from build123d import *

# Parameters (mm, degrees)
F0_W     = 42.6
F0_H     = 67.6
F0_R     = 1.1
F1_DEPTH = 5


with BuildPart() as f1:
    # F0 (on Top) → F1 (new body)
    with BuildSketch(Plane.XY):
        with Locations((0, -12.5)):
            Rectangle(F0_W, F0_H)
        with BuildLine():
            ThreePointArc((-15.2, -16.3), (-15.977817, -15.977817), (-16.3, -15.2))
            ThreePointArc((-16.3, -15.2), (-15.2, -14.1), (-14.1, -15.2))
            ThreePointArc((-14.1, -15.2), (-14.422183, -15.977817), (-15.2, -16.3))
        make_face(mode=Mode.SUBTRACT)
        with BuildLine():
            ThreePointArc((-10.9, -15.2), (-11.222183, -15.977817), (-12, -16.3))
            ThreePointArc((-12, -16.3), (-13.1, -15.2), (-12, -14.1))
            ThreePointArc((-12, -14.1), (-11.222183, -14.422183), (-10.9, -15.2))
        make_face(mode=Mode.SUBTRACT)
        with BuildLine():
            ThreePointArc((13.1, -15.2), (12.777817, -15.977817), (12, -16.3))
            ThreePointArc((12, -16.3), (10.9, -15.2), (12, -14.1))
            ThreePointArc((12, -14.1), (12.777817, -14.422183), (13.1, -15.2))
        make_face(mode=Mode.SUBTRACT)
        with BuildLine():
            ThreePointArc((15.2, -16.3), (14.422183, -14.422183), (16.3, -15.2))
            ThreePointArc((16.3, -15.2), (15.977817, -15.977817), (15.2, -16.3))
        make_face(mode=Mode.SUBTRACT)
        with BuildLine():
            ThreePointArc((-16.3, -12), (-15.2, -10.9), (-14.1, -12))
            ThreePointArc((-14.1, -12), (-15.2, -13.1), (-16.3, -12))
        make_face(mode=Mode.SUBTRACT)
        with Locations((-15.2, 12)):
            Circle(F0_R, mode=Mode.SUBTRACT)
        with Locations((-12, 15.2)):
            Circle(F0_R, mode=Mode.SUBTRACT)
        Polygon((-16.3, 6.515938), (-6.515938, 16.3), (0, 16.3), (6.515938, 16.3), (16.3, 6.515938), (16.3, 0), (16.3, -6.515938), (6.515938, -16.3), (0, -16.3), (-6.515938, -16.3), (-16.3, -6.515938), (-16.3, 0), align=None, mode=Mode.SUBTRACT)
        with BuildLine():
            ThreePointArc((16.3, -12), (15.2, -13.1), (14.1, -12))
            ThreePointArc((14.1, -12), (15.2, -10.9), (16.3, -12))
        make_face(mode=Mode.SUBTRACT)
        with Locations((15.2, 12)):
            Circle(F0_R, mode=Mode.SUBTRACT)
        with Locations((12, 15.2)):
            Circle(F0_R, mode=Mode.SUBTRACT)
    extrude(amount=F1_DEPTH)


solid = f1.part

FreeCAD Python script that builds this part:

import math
import FreeCAD as App
import Part
import Sketcher
Q = App.Units.Quantity


def add_polygon(sketch, points):
    """Adds a closed chain of lines whose ends are joined by coincident constraints."""
    first, n = sketch.GeometryCount, len(points)
    for a, b in zip(points, points[1:] + points[:1]):
        sketch.addGeometry(Part.LineSegment(App.Vector(*a, 0), App.Vector(*b, 0)), False)
    for i in range(n):
        sketch.addConstraint(Sketcher.Constraint("Coincident", first + i, 2, first + (i + 1) % n, 1))

doc = App.newDocument("Part")
params = doc.addObject("Spreadsheet::Sheet", "Params")
for row, (alias, value) in enumerate([
    ("sketch1_diameter", "2.2 mm"),
    ("sketch1_width", "42.6 mm"),
    ("sketch1_height", "67.6 mm"),
    ("pad1_length", "5 mm"),
], start=1):
    params.set(f"A{row}", alias)
    params.set(f"B{row}", "=" + value)
    params.setAlias(f"B{row}", alias)

body = doc.addObject("PartDesign::Body", "Body")

sketch1 = body.newObject("Sketcher::SketchObject", "Sketch")
sketch1.AttachmentSupport = (doc.getObject("XY_Plane"), [""])
sketch1.MapMode = "FlatFace"
add_polygon(sketch1, [(-21.3, 21.3), (-21.3, -46.3), (21.3, -46.3), (21.3, 21.3)])
sketch1.addGeometry(Part.ArcOfCircle(Part.Circle(App.Vector(-15.200002, -15.199998, 0), App.Vector(0, 0, 1), 1.100002), math.radians(-89.999918), math.radians(-0.000082)), False)
sketch1.addGeometry(Part.ArcOfCircle(Part.Circle(App.Vector(-15.199998, -15.199998, 0), App.Vector(0, 0, 1), 1.100002), math.radians(-179.999918), math.radians(-90.000082)), False)
sketch1.addGeometry(Part.ArcOfCircle(Part.Circle(App.Vector(-15.2, -15.2, 0), App.Vector(0, 0, 1), 1.1), math.radians(0), math.radians(180)), False)
sketch1.addGeometry(Part.ArcOfCircle(Part.Circle(App.Vector(-12.000002, -15.200002, 0), App.Vector(0, 0, 1), 1.100002), math.radians(0.000082), math.radians(89.999918)), False)
sketch1.addGeometry(Part.ArcOfCircle(Part.Circle(App.Vector(-12.000002, -15.199998, 0), App.Vector(0, 0, 1), 1.100002), math.radians(-89.999918), math.radians(-0.000082)), False)
sketch1.addGeometry(Part.ArcOfCircle(Part.Circle(App.Vector(-12, -15.2, 0), App.Vector(0, 0, 1), 1.1), math.radians(90), math.radians(270)), False)
sketch1.addGeometry(Part.Circle(App.Vector(-15.2, -12, 0), App.Vector(0, 0, 1), 1.1), False)
sketch1.addGeometry(Part.ArcOfCircle(Part.Circle(App.Vector(11.999998, -15.200002, 0), App.Vector(0, 0, 1), 1.100002), math.radians(0.000082), math.radians(89.999918)), False)
sketch1.addGeometry(Part.ArcOfCircle(Part.Circle(App.Vector(11.999998, -15.199998, 0), App.Vector(0, 0, 1), 1.100002), math.radians(-89.999918), math.radians(-0.000082)), False)
sketch1.addGeometry(Part.ArcOfCircle(Part.Circle(App.Vector(12, -15.2, 0), App.Vector(0, 0, 1), 1.1), math.radians(90), math.radians(270)), False)
sketch1.addGeometry(Part.ArcOfCircle(Part.Circle(App.Vector(15.199998, -15.199998, 0), App.Vector(0, 0, 1), 1.100002), math.radians(-89.999918), math.radians(-0.000082)), False)
sketch1.addGeometry(Part.ArcOfCircle(Part.Circle(App.Vector(15.2, -15.2, 0), App.Vector(0, 0, 1), 1.1), math.radians(0.000014), math.radians(269.999986)), False)
sketch1.addGeometry(Part.Circle(App.Vector(15.2, -12, 0), App.Vector(0, 0, 1), 1.1), False)
sketch1.addGeometry(Part.Circle(App.Vector(-15.2, 12, 0), App.Vector(0, 0, 1), 1.1), False)
sketch1.addGeometry(Part.Circle(App.Vector(-12, 15.2, 0), App.Vector(0, 0, 1), 1.1), False)
add_polygon(sketch1, [(-16.3, -6.515938), (-16.3, 6.515938), (-6.515938, 16.3), (6.515938, 16.3), (16.3, 6.515938), (16.3, -6.515938), (6.515938, -16.3), (-6.515938, -16.3)])
sketch1.addGeometry(Part.Circle(App.Vector(15.2, 12, 0), App.Vector(0, 0, 1), 1.1), False)
sketch1.addGeometry(Part.Circle(App.Vector(12, 15.2, 0), App.Vector(0, 0, 1), 1.1), False)
sketch1.addConstraint([
    Sketcher.Constraint("Coincident", 4, 1, 5, 2),
    Sketcher.Constraint("Tangent", 5, 1, 6, 2),
    Sketcher.Constraint("Tangent", 6, 1, 4, 2),
    Sketcher.Constraint("Coincident", 7, 1, 8, 2),
    Sketcher.Constraint("Tangent", 8, 1, 9, 2),
    Sketcher.Constraint("Tangent", 9, 1, 7, 2),
    Sketcher.Constraint("Coincident", 11, 1, 12, 2),
    Sketcher.Constraint("Tangent", 12, 1, 13, 2),
    Sketcher.Constraint("Tangent", 13, 1, 11, 2),
    Sketcher.Constraint("Tangent", 14, 1, 15, 2),
    Sketcher.Constraint("Coincident", 15, 1, 14, 2),
    Sketcher.Constraint("Vertical", 0),
    Sketcher.Constraint("Horizontal", 1),
    Sketcher.Constraint("Vertical", 2),
    Sketcher.Constraint("Horizontal", 3),
    Sketcher.Constraint("Vertical", 19),
    Sketcher.Constraint("Horizontal", 21),
    Sketcher.Constraint("Vertical", 23),
    Sketcher.Constraint("Horizontal", 25),
    Sketcher.Constraint("Equal", 5, 6),
    Sketcher.Constraint("Equal", 6, 7),
    Sketcher.Constraint("Equal", 8, 9),
    Sketcher.Constraint("Equal", 9, 10),
    Sketcher.Constraint("Equal", 10, 11),
    Sketcher.Constraint("Equal", 12, 13),
    Sketcher.Constraint("Equal", 13, 14),
    Sketcher.Constraint("Equal", 15, 16),
    Sketcher.Constraint("Equal", 16, 17),
    Sketcher.Constraint("Equal", 17, 18),
    Sketcher.Constraint("Equal", 18, 27),
    Sketcher.Constraint("Equal", 27, 28),
    Sketcher.Constraint("Symmetric", 16, 3, 17, 3, -1, 1),
    Sketcher.Constraint("Symmetric", 11, 3, 18, 3, -1, 1),
    Sketcher.Constraint("Symmetric", 10, 3, 27, 3, -1, 1),
    Sketcher.Constraint("Symmetric", 7, 3, 28, 3, -1, 1),
    Sketcher.Constraint("Symmetric", 19, 2, 23, 2, -1, 1),
    Sketcher.Constraint("Symmetric", 20, 2, 24, 2, -1, 1),
    Sketcher.Constraint("Symmetric", 7, 3, 11, 3, -2),
    Sketcher.Constraint("Symmetric", 4, 3, 14, 3, -2),
    Sketcher.Constraint("Symmetric", 10, 3, 16, 3, -2),
    Sketcher.Constraint("Perpendicular", 20, 22),
    Sketcher.Constraint("Perpendicular", 24, 26),
    Sketcher.Constraint("Horizontal", 6, 3, 7, 3),
    Sketcher.Constraint("Horizontal", 15, 3, 5, 1),
    Sketcher.Constraint("Horizontal", 5, 1, 6, 1),
    Sketcher.Constraint("Horizontal", 6, 1, 7, 1),
    Sketcher.Constraint("Horizontal", 7, 1, 11, 1),
    Sketcher.Constraint("Horizontal", 11, 1, 15, 1),
    Sketcher.Constraint("Horizontal", 19, 2, 22, 2),
    Sketcher.Constraint("Horizontal", 14, 1, 24, 2),
    Sketcher.Constraint("Horizontal", 23, 2, 26, 2),
    Sketcher.Constraint("Vertical", 6, 3, 10, 3),
    Sketcher.Constraint("Vertical", 17, 3, 4, 1),
    Sketcher.Constraint("Vertical", 18, 3, 8, 1),
    Sketcher.Constraint("Vertical", 8, 1, 9, 1),
    Sketcher.Constraint("Vertical", 28, 3, 12, 1),
    Sketcher.Constraint("Vertical", 12, 1, 13, 1),
    Sketcher.Constraint("Vertical", 27, 3, 14, 1),
    Sketcher.Constraint("Vertical", 5, 1, 19, 2),
    Sketcher.Constraint("Vertical", 21, 2, 24, 2),
    Sketcher.Constraint("Equal", 25, 19),
    Sketcher.Constraint("Diameter", 10, Q("2.2 mm")),
    Sketcher.Constraint("DistanceX", 1, 1, 1, 2, Q("42.6 mm")),
    Sketcher.Constraint("DistanceY", 0, 2, 0, 1, Q("67.6 mm")),
    Sketcher.Constraint("DistanceX", 7, 3, -1, 1, Q("12.000002 mm")),
    Sketcher.Constraint("DistanceY", 10, 3, -1, 1, Q("12 mm")),
    Sketcher.Constraint("DistanceX", 3, 2, 19, 2, Q("5 mm")),
    Sketcher.Constraint("DistanceY", 20, 2, 3, 2, Q("5 mm")),
    Sketcher.Constraint("DistanceX", 22, 2, 2, 2, Q("5 mm")),
    Sketcher.Constraint("DistanceX", 21, 1, 21, 2, Q("13.031876 mm")),
])
sketch1.setExpression("Constraints[73]", "Params.sketch1_diameter")
sketch1.setExpression("Constraints[74]", "Params.sketch1_width")
sketch1.setExpression("Constraints[75]", "Params.sketch1_height")
pad1 = body.newObject("PartDesign::Pad", "Pad")
pad1.Profile = sketch1
pad1.setExpression("Length", "Params.pad1_length")

doc.recompute()
